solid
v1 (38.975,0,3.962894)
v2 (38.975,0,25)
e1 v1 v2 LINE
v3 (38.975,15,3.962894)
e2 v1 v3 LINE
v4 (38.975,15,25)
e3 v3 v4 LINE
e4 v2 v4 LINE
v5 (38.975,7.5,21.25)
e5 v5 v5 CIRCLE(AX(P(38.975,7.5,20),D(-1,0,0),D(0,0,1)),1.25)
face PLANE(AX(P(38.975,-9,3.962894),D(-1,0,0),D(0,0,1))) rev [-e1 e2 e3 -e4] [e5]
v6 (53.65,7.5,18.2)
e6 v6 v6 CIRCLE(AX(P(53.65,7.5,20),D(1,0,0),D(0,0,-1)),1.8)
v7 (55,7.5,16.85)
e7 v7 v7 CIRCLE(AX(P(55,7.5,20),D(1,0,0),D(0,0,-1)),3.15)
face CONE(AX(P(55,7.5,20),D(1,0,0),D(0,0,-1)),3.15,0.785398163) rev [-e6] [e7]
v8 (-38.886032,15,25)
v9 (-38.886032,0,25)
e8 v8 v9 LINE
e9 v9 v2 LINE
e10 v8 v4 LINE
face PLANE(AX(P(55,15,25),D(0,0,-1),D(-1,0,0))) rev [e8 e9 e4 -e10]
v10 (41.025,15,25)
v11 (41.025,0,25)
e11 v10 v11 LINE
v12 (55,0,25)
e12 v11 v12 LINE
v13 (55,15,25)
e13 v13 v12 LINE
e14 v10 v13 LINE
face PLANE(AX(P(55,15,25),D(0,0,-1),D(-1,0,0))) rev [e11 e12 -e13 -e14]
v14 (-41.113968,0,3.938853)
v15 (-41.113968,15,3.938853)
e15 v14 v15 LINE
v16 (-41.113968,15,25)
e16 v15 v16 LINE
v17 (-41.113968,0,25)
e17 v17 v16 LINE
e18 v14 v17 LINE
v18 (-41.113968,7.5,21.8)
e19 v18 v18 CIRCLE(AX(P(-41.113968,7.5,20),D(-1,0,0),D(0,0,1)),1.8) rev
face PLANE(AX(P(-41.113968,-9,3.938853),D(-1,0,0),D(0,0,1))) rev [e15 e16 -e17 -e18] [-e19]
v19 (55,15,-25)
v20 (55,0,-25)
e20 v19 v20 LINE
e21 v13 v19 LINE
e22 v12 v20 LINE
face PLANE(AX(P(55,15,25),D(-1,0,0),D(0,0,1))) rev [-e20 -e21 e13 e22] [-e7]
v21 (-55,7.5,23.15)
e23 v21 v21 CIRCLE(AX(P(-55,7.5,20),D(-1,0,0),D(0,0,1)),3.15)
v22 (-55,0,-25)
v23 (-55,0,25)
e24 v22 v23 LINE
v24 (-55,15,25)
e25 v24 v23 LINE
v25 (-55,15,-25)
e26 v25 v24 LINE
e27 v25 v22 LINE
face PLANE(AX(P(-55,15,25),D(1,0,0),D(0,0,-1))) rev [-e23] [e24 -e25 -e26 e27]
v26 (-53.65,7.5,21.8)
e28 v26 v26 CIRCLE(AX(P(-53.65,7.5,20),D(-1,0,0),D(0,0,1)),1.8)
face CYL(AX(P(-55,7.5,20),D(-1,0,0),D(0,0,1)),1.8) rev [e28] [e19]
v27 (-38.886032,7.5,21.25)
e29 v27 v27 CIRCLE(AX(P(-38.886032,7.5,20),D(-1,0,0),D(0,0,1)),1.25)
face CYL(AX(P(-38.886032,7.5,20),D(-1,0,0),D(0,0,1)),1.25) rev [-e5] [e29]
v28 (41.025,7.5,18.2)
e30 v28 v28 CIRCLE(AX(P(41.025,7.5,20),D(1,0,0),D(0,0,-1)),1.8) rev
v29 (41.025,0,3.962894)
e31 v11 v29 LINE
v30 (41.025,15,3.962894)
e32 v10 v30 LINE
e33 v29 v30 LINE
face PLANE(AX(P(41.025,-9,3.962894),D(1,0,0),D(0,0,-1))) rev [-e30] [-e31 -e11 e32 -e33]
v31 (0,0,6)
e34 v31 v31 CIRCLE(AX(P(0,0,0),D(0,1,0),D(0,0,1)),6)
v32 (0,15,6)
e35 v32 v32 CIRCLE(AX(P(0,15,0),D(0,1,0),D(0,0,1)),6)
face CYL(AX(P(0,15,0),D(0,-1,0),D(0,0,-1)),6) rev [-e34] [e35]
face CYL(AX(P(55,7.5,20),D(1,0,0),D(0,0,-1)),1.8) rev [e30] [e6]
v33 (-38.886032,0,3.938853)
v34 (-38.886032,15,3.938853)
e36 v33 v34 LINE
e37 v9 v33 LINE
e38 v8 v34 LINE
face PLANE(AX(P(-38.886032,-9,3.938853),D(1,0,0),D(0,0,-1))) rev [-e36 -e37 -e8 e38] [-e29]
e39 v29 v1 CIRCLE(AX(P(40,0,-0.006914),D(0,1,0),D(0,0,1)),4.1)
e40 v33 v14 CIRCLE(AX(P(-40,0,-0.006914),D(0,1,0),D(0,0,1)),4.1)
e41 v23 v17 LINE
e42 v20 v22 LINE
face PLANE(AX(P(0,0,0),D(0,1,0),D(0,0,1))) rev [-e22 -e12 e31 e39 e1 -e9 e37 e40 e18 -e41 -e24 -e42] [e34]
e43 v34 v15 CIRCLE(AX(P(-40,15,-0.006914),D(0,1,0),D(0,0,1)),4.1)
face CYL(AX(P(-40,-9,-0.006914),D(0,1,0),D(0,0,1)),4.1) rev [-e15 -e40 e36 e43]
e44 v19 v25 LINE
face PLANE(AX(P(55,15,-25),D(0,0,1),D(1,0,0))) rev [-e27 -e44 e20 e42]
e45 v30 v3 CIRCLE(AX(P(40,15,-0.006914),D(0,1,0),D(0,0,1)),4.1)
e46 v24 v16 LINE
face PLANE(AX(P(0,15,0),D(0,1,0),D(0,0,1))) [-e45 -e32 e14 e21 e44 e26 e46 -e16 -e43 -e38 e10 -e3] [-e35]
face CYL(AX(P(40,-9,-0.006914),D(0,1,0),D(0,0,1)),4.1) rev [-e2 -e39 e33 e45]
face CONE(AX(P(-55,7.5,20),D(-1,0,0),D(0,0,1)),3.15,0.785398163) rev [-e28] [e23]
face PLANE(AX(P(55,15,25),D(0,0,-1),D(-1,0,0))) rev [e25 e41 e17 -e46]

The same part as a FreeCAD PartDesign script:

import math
import FreeCAD as App
import Part
import Sketcher
from FreeCAD import Vector


def add_polygon(sketch, points):
    """Adds a closed chain of lines whose ends are joined by coincident constraints."""
    first, n = sketch.GeometryCount, len(points)
    for a, b in zip(points, points[1:] + points[:1]):
        sketch.addGeometry(Part.LineSegment(App.Vector(*a, 0), App.Vector(*b, 0)), False)
    for i in range(n):
        sketch.addConstraint(Sketcher.Constraint("Coincident", first + i, 2, first + (i + 1) % n, 1))

doc = App.newDocument("Part")
body = doc.addObject("PartDesign::Body", "Body")

sketch1 = doc.addObject("Sketcher::SketchObject", "Sketch")
body.addObject(sketch1)
sketch1.AttachmentSupport = (doc.XZ_Plane, [""])
sketch1.MapMode = "FlatFace"
add_polygon(sketch1, [(-55, -25), (-55, 25), (55, 25), (55, -25)])
sketch1.addGeometry(Part.Circle(Vector(0, 0, 0), Vector(0, 0, 1), 6), False)
sketch1.addConstraint(Sketcher.Constraint("Vertical", 0))
sketch1.addConstraint(Sketcher.Constraint("Horizontal", 1))
sketch1.addConstraint(Sketcher.Constraint("Vertical", 2))
sketch1.addConstraint(Sketcher.Constraint("Horizontal", 3))
sketch1.addConstraint(Sketcher.Constraint("Coincident", 4, 3, -1, 1))
sketch1.addConstraint(Sketcher.Constraint("Symmetric", 0, 2, 2, 2, -1, 1))
sketch1.addConstraint(Sketcher.Constraint("Diameter", 4, 12.0))
sketch1.addConstraint(Sketcher.Constraint("DistanceX", 1, 1, 1, 2, 110.0))
sketch1.addConstraint(Sketcher.Constraint("DistanceY", 0, 1, 0, 2, 50.0))
pad1 = doc.addObject("PartDesign::Pad", "Pad")
body.addObject(pad1)
pad1.Profile = sketch1
pad1.Length = 15
pad1.Reversed = True

sketch2 = doc.addObject("Sketcher::SketchObject", "Sketch001")
body.addObject(sketch2)
sketch2.AttachmentSupport = (doc.XZ_Plane, [""])
sketch2.MapMode = "FlatFace"
sketch2.AttachmentOffset = App.Placement(Vector(0, 0, -15), App.Rotation())
sketch2.addGeometry(Part.LineSegment(Vector(-41.113968, 25, 0), Vector(-38.886032, 25, 0)), False)
sketch2.addGeometry(Part.LineSegment(Vector(-38.886032, 25, 0), Vector(-38.886032, 3.938853, 0)), False)
sketch2.addGeometry(Part.ArcOfCircle(Part.Circle(Vector(-40, -0.006914, 0), Vector(0, 0, 1), 4.1), math.radians(105.765422), math.radians(434.234578)), False)
sketch2.addGeometry(Part.LineSegment(Vector(-41.113968, 3.938853, 0), Vector(-41.113968, 25, 0)), False)
sketch2.addGeometry(Part.LineSegment(Vector(38.975, 25, 0), Vector(41.025, 25, 0)), False)
sketch2.addGeometry(Part.LineSegment(Vector(41.025, 25, 0), Vector(41.025, 3.962894, 0)), False)
sketch2.addGeometry(Part.ArcOfCircle(Part.Circle(Vector(40, -0.006914, 0), Vector(0, 0, 1), 4.1), math.radians(104.477512), math.radians(435.522488)), False)
sketch2.addGeometry(Part.LineSegment(Vector(38.975, 3.962894, 0), Vector(38.975, 25, 0)), False)
sketch2.addConstraint(Sketcher.Constraint("Coincident", 0, 2, 1, 1))
sketch2.addConstraint(Sketcher.Constraint("Coincident", 1, 2, 2, 2))
sketch2.addConstraint(Sketcher.Constraint("Coincident", 2, 1, 3, 1))
sketch2.addConstraint(Sketcher.Constraint("Coincident", 3, 2, 0, 1))
sketch2.addConstraint(Sketcher.Constraint("Coincident", 4, 2, 5, 1))
sketch2.addConstraint(Sketcher.Constraint("Coincident", 5, 2, 6, 2))
sketch2.addConstraint(Sketcher.Constraint("Coincident", 6, 1, 7, 1))
sketch2.addConstraint(Sketcher.Constraint("Coincident", 7, 2, 4, 1))
sketch2.addConstraint(Sketcher.Constraint("Horizontal", 0))
sketch2.addConstraint(Sketcher.Constraint("Vertical", 1))
sketch2.addConstraint(Sketcher.Constraint("Vertical", 3))
sketch2.addConstraint(Sketcher.Constraint("Horizontal", 4))
sketch2.addConstraint(Sketcher.Constraint("Vertical", 5))
sketch2.addConstraint(Sketcher.Constraint("Vertical", 7))
sketch2.addConstraint(Sketcher.Constraint("Equal", 2, 6))
sketch2.addConstraint(Sketcher.Constraint("Symmetric", 2, 3, 6, 3, -2))
sketch2.addConstraint(Sketcher.Constraint("Horizontal", 1, 2, 2, 1))
sketch2.addConstraint(Sketcher.Constraint("Horizontal", 3, 2, 4, 2))
sketch2.addConstraint(Sketcher.Constraint("Horizontal", 5, 2, 6, 1))
sketch2.addConstraint(Sketcher.Constraint("Radius", 2, 4.1))
sketch2.addConstraint(Sketcher.Constraint("DistanceX", 2, 3, -1, 1, 40.0))
sketch2.addConstraint(Sketcher.Constraint("DistanceY", -1, 1, 0, 2, 25.0))
sketch2.addConstraint(Sketcher.Constraint("DistanceX", 4, 1, 4, 2, 2.05))
sketch2.addConstraint(Sketcher.Constraint("DistanceX", 0, 1, 0, 2, 2.227936))
sketch2.addConstraint(Sketcher.Constraint("DistanceY", 1, 2, 1, 1, 21.061147))
pocket1 = doc.addObject("PartDesign::Pocket", "Pocket")
body.addObject(pocket1)
pocket1.Profile = sketch2
pocket1.Length = 24
pocket1.Reversed = True

sketch3 = doc.addObject("Sketcher::SketchObject", "Sketch002")
body.addObject(sketch3)
sketch3.AttachmentSupport = (doc.YZ_Plane, [""])
sketch3.MapMode = "FlatFace"
sketch3.AttachmentOffset = App.Placement(Vector(0, 0, -55), App.Rotation())
sketch3.addGeometry(Part.Circle(Vector(7.5, 20, 0), Vector(0, 0, 1), 1.8), False)
sketch3.addConstraint(Sketcher.Constraint("Diameter", 0, 3.6))
sketch3.addConstraint(Sketcher.Constraint("DistanceY", -1, 1, 0, 3, 20.0))
sketch3.addConstraint(Sketcher.Constraint("DistanceX", -1, 1, 0, 3, 7.5))
doc.recompute()
hole = doc.addObject("PartDesign::Hole", "Hole")
body.addObject(hole)
hole.Profile = sketch3
hole.ThreadType = "None"
hole.Diameter = 3.6
hole.DepthType = "Dimension"
hole.Depth = 13.886032
hole.DrillPoint = "Angled"
hole.DrillPointAngle = 118
hole.HoleCutType = "Countersink"
hole.HoleCutDiameter = 6.3
hole.HoleCutCountersinkAngle = 90
hole.Reversed = True

sketch4 = doc.addObject("Sketcher::SketchObject", "Sketch003")
body.addObject(sketch4)
sketch4.AttachmentSupport = (doc.YZ_Plane, [""])
sketch4.MapMode = "FlatFace"
sketch4.AttachmentOffset = App.Placement(Vector(0, 0, 55), App.Rotation())
sketch4.addGeometry(Part.Circle(Vector(7.5, 20, 0), Vector(0, 0, 1), 1.8), False)
sketch4.addConstraint(Sketcher.Constraint("Diameter", 0, 3.6))
sketch4.addConstraint(Sketcher.Constraint("DistanceY", -1, 1, 0, 3, 20.0))
sketch4.addConstraint(Sketcher.Constraint("DistanceX", -1, 1, 0, 3, 7.5))
doc.recompute()
hole2 = doc.addObject("PartDesign::Hole", "Hole001")
body.addObject(hole2)
hole2.Profile = sketch4
hole2.ThreadType = "None"
hole2.Diameter = 3.6
hole2.DepthType = "Dimension"
hole2.Depth = 13.975
hole2.DrillPoint = "Angled"
hole2.DrillPointAngle = 118
hole2.HoleCutType = "Countersink"
hole2.HoleCutDiameter = 6.3
hole2.HoleCutCountersinkAngle = 90

sketch5 = doc.addObject("Sketcher::SketchObject", "Sketch004")
body.addObject(sketch5)
sketch5.AttachmentSupport = (doc.YZ_Plane, [""])
sketch5.MapMode = "FlatFace"
sketch5.AttachmentOffset = App.Placement(Vector(0, 0, -38.886032), App.Rotation())
sketch5.addGeometry(Part.Circle(Vector(7.5, 20, 0), Vector(0, 0, 1), 1.25), False)
sketch5.addConstraint(Sketcher.Constraint("Diameter", 0, 2.5))
sketch5.addConstraint(Sketcher.Constraint("DistanceY", -1, 1, 0, 3, 20.0))
sketch5.addConstraint(Sketcher.Constraint("DistanceX", -1, 1, 0, 3, 7.5))
doc.recompute()
hole3 = doc.addObject("PartDesign::Hole", "Hole002")
body.addObject(hole3)
hole3.Profile = sketch5
hole3.ThreadType = "None"
hole3.Diameter = 2.5
hole3.DepthType = "ThroughAll"
hole3.Reversed = True

doc.recompute()
